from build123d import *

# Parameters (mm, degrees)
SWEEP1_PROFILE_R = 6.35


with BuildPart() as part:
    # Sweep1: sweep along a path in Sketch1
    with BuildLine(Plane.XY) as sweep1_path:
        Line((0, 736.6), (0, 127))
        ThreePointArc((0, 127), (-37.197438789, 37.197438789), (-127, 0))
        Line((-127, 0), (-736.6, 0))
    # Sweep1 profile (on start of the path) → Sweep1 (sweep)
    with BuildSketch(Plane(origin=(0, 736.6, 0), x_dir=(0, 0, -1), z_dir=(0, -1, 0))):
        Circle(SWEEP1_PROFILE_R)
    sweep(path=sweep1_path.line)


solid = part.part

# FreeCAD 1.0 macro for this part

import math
import FreeCAD as App
import Part
import Sketcher
Q = App.Units.Quantity

doc = App.newDocument("Part")
body = doc.addObject("PartDesign::Body", "Body")

# Sketch on XZ plane
sketch1 = doc.addObject("Sketcher::SketchObject", "Sketch")
body.addObject(sketch1)
sketch1.AttachmentSupport = (doc.XZ_Plane, [""])
sketch1.MapMode = "FlatFace"
sketch1.AttachmentOffset = App.Placement(App.Vector(0, 0, -29 * 25.4), App.Rotation())
sketch1.addGeometry(Part.Circle(App.Vector(0, 0, 0), App.Vector(0, 0, 1), 6.35), False)
sketch1.addConstraint(Sketcher.Constraint("Coincident", 0, 3, -1, 1))
sketch1.addConstraint(Sketcher.Constraint("Diameter", 0, Q("0.5 in")))

# Sketch on XY plane
sketch2 = doc.addObject("Sketcher::SketchObject", "Sketch001")
body.addObject(sketch2)
sketch2.AttachmentSupport = (doc.XY_Plane, [""])
sketch2.MapMode = "FlatFace"
sketch2.addGeometry(Part.LineSegment(App.Vector(0, 736.6, 0), App.Vector(0, 127, 0)), False)
sketch2.addGeometry(Part.ArcOfCircle(Part.Circle(App.Vector(-127, 127, 0), App.Vector(0, 0, 1), 127), math.radians(-90), math.radians(0)), False)
sketch2.addGeometry(Part.LineSegment(App.Vector(-127, 0, 0), App.Vector(-736.6, 0, 0)), False)
sketch2.addConstraint(Sketcher.Constraint("Tangent", 0, 2, 1, 2))
sketch2.addConstraint(Sketcher.Constraint("Tangent", 1, 1, 2, 1))
sketch2.addConstraint(Sketcher.Constraint("Vertical", 0))
sketch2.addConstraint(Sketcher.Constraint("Horizontal", 2))
sketch2.addConstraint(Sketcher.Constraint("PointOnObject", 0, 1, -2))
sketch2.addConstraint(Sketcher.Constraint("PointOnObject", 1, 1, -1))
sketch2.addConstraint(Sketcher.Constraint("Equal", 2, 0))
sketch2.addConstraint(Sketcher.Constraint("Radius", 1, Q("5 in")))
sketch2.addConstraint(Sketcher.Constraint("DistanceX", 2, 2, 2, 1, Q("24 in")))
doc.recompute()

additivepipe = doc.addObject("PartDesign::AdditivePipe", "AdditivePipe")
body.addObject(additivepipe)
additivepipe.Profile = sketch1
additivepipe.Spine = (sketch2, ["Edge1", "Edge2", "Edge3"])

doc.recompute()
